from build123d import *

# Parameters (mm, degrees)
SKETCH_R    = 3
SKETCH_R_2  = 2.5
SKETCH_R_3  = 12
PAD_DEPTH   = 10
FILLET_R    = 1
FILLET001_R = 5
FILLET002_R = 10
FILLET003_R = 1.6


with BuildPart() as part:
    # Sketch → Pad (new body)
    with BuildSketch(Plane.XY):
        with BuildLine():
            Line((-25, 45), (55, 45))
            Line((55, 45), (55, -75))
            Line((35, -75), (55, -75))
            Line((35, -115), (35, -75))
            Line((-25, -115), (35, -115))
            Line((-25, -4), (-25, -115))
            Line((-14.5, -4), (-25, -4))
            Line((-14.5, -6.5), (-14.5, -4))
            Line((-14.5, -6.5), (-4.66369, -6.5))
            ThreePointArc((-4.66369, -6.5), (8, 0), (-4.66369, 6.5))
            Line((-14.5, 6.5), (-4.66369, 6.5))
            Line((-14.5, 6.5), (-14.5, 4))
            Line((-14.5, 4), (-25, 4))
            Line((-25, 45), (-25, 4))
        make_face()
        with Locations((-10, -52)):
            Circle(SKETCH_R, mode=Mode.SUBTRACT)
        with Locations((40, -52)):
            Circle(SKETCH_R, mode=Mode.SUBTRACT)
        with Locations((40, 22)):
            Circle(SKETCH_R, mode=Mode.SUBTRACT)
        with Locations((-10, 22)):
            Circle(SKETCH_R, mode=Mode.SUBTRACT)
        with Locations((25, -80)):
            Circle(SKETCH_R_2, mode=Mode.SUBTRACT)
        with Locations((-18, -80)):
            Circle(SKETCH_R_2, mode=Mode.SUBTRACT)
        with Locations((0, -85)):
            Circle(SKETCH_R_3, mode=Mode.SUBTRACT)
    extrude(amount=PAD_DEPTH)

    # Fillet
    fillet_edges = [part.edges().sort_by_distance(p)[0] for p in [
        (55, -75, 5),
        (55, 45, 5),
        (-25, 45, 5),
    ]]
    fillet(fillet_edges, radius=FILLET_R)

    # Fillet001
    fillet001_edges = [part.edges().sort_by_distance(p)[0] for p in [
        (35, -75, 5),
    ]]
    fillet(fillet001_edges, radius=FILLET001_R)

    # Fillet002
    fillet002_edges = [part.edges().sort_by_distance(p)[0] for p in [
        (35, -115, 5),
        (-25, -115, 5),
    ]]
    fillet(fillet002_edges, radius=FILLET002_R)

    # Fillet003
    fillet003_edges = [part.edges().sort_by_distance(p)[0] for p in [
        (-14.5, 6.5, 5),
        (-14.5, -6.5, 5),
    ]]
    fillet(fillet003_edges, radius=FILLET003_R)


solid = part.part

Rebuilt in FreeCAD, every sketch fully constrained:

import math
import FreeCAD as App
import Part
import Sketcher
from FreeCAD import Vector
Q = App.Units.Quantity


def edges_at(feature, points):
    """Names of the edges that pass closest to the given points."""
    edges = feature.Shape.Edges
    near = lambda p: min(range(len(edges)), key=lambda i: edges[i].distToShape(Part.Vertex(*p))[0])
    return sorted({f"Edge{near(p) + 1}" for p in points})

doc = App.newDocument("Part")
body = doc.addObject("PartDesign::Body", "Body")

sketch1 = body.newObject("Sketcher::SketchObject", "Sketch")
sketch1.AttachmentSupport = (doc.getObject("XY_Plane"), [""])
sketch1.MapMode = "FlatFace"
sketch1.addGeometry([
    Part.LineSegment(Vector(55, 45, 0), Vector(-25, 45, 0)),
    Part.LineSegment(Vector(-25, 45, 0), Vector(-25, 4, 0)),
    Part.LineSegment(Vector(-25, 4, 0), Vector(-14.5, 4, 0)),
    Part.LineSegment(Vector(-14.5, 4, 0), Vector(-14.5, 6.5, 0)),
    Part.LineSegment(Vector(-14.5, 6.5, 0), Vector(-4.7, 6.5, 0)),
    Part.ArcOfCircle(Part.Circle(Vector(0, 0, 0), Vector(0, 0, 1), 8), math.radians(-126), math.radians(126)),
    Part.LineSegment(Vector(-4.7, -6.5, 0), Vector(-14.5, -6.5, 0)),
    Part.LineSegment(Vector(-14.5, -6.5, 0), Vector(-14.5, -4, 0)),
    Part.LineSegment(Vector(-14.5, -4, 0), Vector(-25, -4, 0)),
    Part.LineSegment(Vector(-25, -4, 0), Vector(-25, -115, 0)),
    Part.LineSegment(Vector(-25, -115, 0), Vector(35, -115, 0)),
    Part.LineSegment(Vector(35, -115, 0), Vector(35, -75, 0)),
    Part.LineSegment(Vector(35, -75, 0), Vector(55, -75, 0)),
    Part.LineSegment(Vector(55, -75, 0), Vector(55, 45, 0)),
    Part.Circle(Vector(25, -80, 0), Vector(0, 0, 1), 2.5),
    Part.Circle(Vector(40, -52, 0), Vector(0, 0, 1), 3),
    Part.Circle(Vector(0, -85, 0), Vector(0, 0, 1), 12),
    Part.Circle(Vector(-18, -80, 0), Vector(0, 0, 1), 2.5),
    Part.Circle(Vector(-10, -52, 0), Vector(0, 0, 1), 3),
    Part.Circle(Vector(40, 22, 0), Vector(0, 0, 1), 3),
    Part.Circle(Vector(-10, 22, 0), Vector(0, 0, 1), 3),
], False)
sketch1.addConstraint([
    Sketcher.Constraint("Coincident", 0, 2, 1, 1),
    Sketcher.Constraint("Coincident", 1, 2, 2, 1),
    Sketcher.Constraint("Coincident", 2, 2, 3, 1),
    Sketcher.Constraint("Coincident", 3, 2, 4, 1),
    Sketcher.Constraint("Coincident", 4, 2, 5, 2),
    Sketcher.Constraint("Coincident", 5, 1, 6, 1),
    Sketcher.Constraint("Coincident", 6, 2, 7, 1),
    Sketcher.Constraint("Coincident", 7, 2, 8, 1),
    Sketcher.Constraint("Coincident", 8, 2, 9, 1),
    Sketcher.Constraint("Coincident", 9, 2, 10, 1),
    Sketcher.Constraint("Coincident", 10, 2, 11, 1),
    Sketcher.Constraint("Coincident", 11, 2, 12, 1),
    Sketcher.Constraint("Coincident", 12, 2, 13, 1),
    Sketcher.Constraint("Coincident", 13, 2, 0, 1),
    Sketcher.Constraint("Horizontal", 0),
    Sketcher.Constraint("Vertical", 1),
    Sketcher.Constraint("Horizontal", 2),
    Sketcher.Constraint("Vertical", 3),
    Sketcher.Constraint("Horizontal", 4),
    Sketcher.Constraint("Horizontal", 6),
    Sketcher.Constraint("Vertical", 7),
    Sketcher.Constraint("Horizontal", 8),
    Sketcher.Constraint("Vertical", 9),
    Sketcher.Constraint("Horizontal", 10),
    Sketcher.Constraint("Vertical", 11),
    Sketcher.Constraint("Horizontal", 12),
    Sketcher.Constraint("Vertical", 13),
    Sketcher.Constraint("Coincident", 5, 3, -1, 1),
    Sketcher.Constraint("Equal", 14, 17),
    Sketcher.Constraint("Equal", 15, 18),
    Sketcher.Constraint("Equal", 18, 19),
    Sketcher.Constraint("Equal", 19, 20),
    Sketcher.Constraint("Symmetric", 3, 2, 6, 2, -1),
    Sketcher.Constraint("Symmetric", 1, 2, 8, 2, -1),
    Sketcher.Constraint("PointOnObject", 16, 3, -2),
    Sketcher.Constraint("Horizontal", 14, 3, 17, 3),
    Sketcher.Constraint("Horizontal", 15, 3, 18, 3),
    Sketcher.Constraint("Horizontal", 19, 3, 20, 3),
    Sketcher.Constraint("Vertical", 15, 3, 19, 3),
    Sketcher.Constraint("Vertical", 18, 3, 20, 3),
    Sketcher.Constraint("Diameter", 14, Q("5 mm")),
    Sketcher.Constraint("Diameter", 15, Q("6 mm")),
    Sketcher.Constraint("Diameter", 16, Q("24 mm")),
    Sketcher.Constraint("Radius", 5, Q("8 mm")),
    Sketcher.Constraint("DistanceX", 0, 2, 0, 1, Q("80 mm")),
    Sketcher.Constraint("DistanceX", 10, 1, 10, 2, Q("60 mm")),
    Sketcher.Constraint("DistanceY", 1, 2, 1, 1, Q("41 mm")),
    Sketcher.Constraint("DistanceY", 9, 2, 9, 1, Q("111 mm")),
    Sketcher.Constraint("DistanceY", 11, 1, 11, 2, Q("40 mm")),
    Sketcher.Constraint("DistanceY", 13, 1, 13, 2, Q("120 mm")),
    Sketcher.Constraint("DistanceX", 2, 1, 2, 2, Q("10.5 mm")),
    Sketcher.Constraint("DistanceY", 3, 1, 3, 2, Q("2.5 mm")),
    Sketcher.Constraint("DistanceX", -1, 1, 14, 3, Q("25 mm")),
    Sketcher.Constraint("DistanceY", 14, 3, -1, 1, Q("80 mm")),
    Sketcher.Constraint("DistanceX", -1, 1, 15, 3, Q("40 mm")),
    Sketcher.Constraint("DistanceY", 15, 3, -1, 1, Q("52 mm")),
    Sketcher.Constraint("DistanceY", 16, 3, -1, 1, Q("85 mm")),
    Sketcher.Constraint("DistanceX", 17, 3, -1, 1, Q("18 mm")),
    Sketcher.Constraint("DistanceX", 18, 3, -1, 1, Q("10 mm")),
    Sketcher.Constraint("DistanceY", -1, 1, 19, 3, Q("22 mm")),
    Sketcher.Constraint("DistanceX", 0, 2, -1, 1, Q("25 mm")),
])
pad1 = body.newObject("PartDesign::Pad", "Pad")
pad1.Profile = sketch1
pad1.Length = 10
doc.recompute()

fillet = body.newObject("PartDesign::Fillet", "Fillet")
fillet.Base = (pad1, edges_at(pad1, [(55, -75, 5), (55, 45, 5), (-25, 45, 5)]))
fillet.Radius = 1
doc.recompute()

fillet2 = body.newObject("PartDesign::Fillet", "Fillet001")
fillet2.Base = (fillet, edges_at(fillet, [(35, -75, 5)]))
fillet2.Radius = 5
doc.recompute()

fillet3 = body.newObject("PartDesign::Fillet", "Fillet002")
fillet3.Base = (fillet2, edges_at(fillet2, [(35, -115, 5), (-25, -115, 5)]))
fillet3.Radius = 10
doc.recompute()

fillet4 = body.newObject("PartDesign::Fillet", "Fillet003")
fillet4.Base = (fillet3, edges_at(fillet3, [(-14.5, 6.5, 5), (-14.5, -6.5, 5)]))
fillet4.Radius = 1.6

doc.recompute()
